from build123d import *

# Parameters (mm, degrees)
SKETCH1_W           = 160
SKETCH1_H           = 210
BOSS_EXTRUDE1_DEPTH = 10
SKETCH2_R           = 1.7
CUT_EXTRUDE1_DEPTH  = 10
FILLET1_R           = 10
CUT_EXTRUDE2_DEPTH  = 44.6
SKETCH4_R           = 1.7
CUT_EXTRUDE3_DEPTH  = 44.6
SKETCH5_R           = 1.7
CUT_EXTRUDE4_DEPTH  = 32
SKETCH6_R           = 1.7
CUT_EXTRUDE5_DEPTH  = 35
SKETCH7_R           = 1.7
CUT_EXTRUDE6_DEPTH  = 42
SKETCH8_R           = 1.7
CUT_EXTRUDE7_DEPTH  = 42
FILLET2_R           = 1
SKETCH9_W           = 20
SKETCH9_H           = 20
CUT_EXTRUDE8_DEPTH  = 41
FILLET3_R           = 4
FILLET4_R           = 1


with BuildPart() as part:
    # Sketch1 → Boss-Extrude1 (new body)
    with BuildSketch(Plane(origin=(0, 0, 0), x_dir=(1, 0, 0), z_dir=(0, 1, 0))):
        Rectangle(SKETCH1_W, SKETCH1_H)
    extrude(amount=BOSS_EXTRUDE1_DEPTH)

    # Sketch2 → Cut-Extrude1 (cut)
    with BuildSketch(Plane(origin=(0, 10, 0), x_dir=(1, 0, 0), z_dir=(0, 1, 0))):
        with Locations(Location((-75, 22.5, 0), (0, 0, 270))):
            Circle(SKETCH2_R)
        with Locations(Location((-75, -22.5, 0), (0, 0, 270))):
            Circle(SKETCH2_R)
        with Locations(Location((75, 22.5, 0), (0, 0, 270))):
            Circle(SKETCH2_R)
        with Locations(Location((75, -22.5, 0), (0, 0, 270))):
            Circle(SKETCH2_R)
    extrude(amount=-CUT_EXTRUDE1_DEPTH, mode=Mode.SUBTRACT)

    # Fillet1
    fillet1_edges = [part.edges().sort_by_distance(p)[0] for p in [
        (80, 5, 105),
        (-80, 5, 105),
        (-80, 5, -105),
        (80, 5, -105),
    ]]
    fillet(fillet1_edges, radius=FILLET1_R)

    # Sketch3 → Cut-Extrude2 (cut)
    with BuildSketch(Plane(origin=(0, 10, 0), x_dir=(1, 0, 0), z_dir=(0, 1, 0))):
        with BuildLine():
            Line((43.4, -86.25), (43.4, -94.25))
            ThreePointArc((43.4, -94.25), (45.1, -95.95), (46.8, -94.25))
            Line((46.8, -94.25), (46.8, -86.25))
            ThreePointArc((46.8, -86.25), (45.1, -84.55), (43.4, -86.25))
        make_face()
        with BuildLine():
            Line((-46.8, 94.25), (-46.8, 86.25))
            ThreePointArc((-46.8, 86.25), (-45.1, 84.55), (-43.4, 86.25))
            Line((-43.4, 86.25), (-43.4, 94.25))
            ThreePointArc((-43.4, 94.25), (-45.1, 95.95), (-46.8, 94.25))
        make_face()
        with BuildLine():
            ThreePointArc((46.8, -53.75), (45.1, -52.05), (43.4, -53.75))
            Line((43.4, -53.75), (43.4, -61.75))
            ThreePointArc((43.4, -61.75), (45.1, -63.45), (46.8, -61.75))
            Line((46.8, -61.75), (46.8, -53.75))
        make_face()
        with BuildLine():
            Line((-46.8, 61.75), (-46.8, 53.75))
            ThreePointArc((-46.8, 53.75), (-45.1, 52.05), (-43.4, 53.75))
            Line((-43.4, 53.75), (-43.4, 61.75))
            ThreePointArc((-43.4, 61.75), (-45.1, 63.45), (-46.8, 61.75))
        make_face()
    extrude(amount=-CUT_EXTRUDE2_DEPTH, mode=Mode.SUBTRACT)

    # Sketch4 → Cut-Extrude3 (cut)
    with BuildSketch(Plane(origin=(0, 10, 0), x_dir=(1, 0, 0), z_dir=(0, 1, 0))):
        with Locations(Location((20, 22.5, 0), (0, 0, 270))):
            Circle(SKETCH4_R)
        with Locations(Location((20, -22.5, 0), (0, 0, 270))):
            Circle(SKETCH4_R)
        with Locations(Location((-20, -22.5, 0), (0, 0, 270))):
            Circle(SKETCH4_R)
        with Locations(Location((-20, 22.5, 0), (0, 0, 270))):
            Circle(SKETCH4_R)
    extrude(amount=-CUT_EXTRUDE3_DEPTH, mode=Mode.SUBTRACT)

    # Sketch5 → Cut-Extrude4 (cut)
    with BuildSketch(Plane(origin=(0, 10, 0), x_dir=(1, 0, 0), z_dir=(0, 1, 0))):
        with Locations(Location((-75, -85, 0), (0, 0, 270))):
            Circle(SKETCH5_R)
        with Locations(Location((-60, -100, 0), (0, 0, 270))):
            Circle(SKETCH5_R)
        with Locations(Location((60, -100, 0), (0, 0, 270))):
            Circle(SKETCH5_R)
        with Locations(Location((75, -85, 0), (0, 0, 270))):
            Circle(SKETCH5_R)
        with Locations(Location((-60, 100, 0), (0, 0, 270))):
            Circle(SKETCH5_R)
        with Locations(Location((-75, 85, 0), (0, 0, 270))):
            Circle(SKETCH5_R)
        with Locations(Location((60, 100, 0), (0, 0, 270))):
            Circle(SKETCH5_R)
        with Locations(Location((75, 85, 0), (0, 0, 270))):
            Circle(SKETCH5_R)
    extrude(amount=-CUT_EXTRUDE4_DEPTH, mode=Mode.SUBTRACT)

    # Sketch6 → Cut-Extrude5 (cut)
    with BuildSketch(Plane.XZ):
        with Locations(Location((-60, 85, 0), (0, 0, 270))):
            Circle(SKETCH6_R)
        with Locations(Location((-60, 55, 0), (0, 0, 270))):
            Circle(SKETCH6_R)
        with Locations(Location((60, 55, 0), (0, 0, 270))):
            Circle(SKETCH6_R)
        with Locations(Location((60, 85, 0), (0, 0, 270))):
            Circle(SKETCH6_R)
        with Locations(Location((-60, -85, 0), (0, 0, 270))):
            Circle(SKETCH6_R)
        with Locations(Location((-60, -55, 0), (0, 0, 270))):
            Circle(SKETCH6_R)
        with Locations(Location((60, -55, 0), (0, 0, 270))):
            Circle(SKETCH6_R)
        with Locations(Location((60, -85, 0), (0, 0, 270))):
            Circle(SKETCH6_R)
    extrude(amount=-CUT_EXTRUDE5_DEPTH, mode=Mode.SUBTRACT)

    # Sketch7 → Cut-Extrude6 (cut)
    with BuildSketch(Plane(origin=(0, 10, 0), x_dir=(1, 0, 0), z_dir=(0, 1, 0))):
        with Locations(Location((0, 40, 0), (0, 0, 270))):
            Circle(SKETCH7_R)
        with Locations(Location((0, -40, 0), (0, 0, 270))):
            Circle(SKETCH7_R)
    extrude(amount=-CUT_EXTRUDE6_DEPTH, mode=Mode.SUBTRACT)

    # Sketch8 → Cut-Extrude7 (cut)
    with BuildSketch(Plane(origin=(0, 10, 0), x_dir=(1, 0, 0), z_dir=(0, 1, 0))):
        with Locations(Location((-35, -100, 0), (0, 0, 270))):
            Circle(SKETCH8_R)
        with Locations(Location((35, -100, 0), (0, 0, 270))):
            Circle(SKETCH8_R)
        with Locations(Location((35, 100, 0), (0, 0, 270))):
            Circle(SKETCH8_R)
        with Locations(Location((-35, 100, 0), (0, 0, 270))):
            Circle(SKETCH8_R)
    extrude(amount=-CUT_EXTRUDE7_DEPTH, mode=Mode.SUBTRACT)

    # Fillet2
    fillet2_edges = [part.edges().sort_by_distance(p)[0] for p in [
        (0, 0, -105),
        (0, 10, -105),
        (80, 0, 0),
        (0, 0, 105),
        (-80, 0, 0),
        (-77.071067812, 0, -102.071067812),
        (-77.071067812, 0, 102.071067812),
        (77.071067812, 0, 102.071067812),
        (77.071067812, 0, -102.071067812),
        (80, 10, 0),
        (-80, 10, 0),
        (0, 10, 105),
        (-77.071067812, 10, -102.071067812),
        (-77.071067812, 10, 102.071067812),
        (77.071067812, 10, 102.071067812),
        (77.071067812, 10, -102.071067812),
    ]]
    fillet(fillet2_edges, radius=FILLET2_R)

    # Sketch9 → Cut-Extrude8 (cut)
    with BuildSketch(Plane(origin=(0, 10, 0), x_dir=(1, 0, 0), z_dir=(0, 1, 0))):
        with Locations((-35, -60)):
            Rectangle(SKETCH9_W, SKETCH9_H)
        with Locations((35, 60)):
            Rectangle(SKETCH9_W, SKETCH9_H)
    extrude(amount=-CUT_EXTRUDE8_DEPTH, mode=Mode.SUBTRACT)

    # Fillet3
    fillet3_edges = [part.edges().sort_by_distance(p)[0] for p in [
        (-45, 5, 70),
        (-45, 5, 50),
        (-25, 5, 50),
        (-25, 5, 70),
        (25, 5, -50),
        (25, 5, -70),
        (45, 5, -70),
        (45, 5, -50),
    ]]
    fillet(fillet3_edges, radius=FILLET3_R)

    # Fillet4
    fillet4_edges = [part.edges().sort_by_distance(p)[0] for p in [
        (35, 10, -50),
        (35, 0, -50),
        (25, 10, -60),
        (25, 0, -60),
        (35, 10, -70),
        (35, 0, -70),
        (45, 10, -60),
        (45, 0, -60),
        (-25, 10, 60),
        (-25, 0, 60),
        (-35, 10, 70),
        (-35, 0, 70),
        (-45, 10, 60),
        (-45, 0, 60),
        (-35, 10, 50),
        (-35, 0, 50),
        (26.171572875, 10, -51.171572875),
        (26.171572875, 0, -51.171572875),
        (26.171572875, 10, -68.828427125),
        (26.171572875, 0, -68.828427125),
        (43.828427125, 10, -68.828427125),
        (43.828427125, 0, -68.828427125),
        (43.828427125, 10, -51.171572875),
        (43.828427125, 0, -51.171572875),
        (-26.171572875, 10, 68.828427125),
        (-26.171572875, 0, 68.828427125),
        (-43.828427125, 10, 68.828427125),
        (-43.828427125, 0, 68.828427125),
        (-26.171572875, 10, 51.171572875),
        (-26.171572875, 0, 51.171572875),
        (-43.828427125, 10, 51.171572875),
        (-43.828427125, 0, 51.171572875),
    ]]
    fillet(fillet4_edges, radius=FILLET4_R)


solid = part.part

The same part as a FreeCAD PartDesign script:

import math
import FreeCAD as App
import Part
import Sketcher
from FreeCAD import Vector
Q = App.Units.Quantity


def edges_at(feature, points):
    """Names of the edges that pass closest to the given points."""
    edges = feature.Shape.Edges
    near = lambda p: min(range(len(edges)), key=lambda i: edges[i].distToShape(Part.Vertex(*p))[0])
    return sorted({f"Edge{near(p) + 1}" for p in points})


def add_polygon(sketch, points):
    """Adds a closed chain of lines whose ends are joined by coincident constraints."""
    first, n = sketch.GeometryCount, len(points)
    for a, b in zip(points, points[1:] + points[:1]):
        sketch.addGeometry(Part.LineSegment(App.Vector(*a, 0), App.Vector(*b, 0)), False)
    for i in range(n):
        sketch.addConstraint(Sketcher.Constraint("Coincident", first + i, 2, first + (i + 1) % n, 1))

doc = App.newDocument("Part")
body = doc.addObject("PartDesign::Body", "Body")

sketch1 = body.newObject("Sketcher::SketchObject", "Sketch")
sketch1.AttachmentSupport = (doc.getObject("XZ_Plane"), [""])
sketch1.MapMode = "FlatFace"
add_polygon(sketch1, [(-80, -105), (-80, 105), (80, 105), (80, -105)])
sketch1.addConstraint([
    Sketcher.Constraint("Vertical", 0),
    Sketcher.Constraint("Horizontal", 1),
    Sketcher.Constraint("Vertical", 2),
    Sketcher.Constraint("Horizontal", 3),
    Sketcher.Constraint("Symmetric", 0, 2, 2, 2, -1, 1),
    Sketcher.Constraint("DistanceX", 1, 1, 1, 2, Q("160 mm")),
    Sketcher.Constraint("DistanceY", 0, 1, 0, 2, Q("210 mm")),
])
pad1 = body.newObject("PartDesign::Pad", "Pad")
pad1.Profile = sketch1
pad1.Length = 10
pad1.Reversed = True

sketch2 = body.newObject("Sketcher::SketchObject", "Sketch001")
sketch2.AttachmentSupport = (doc.getObject("XZ_Plane"), [""])
sketch2.MapMode = "FlatFace"
sketch2.AttachmentOffset = App.Placement(Vector(0, 0, -10), App.Rotation())
sketch2.addGeometry([
    Part.Circle(Vector(-75, -22.5, 0), Vector(0, 0, 1), 1.7),
    Part.Circle(Vector(-75, 22.5, 0), Vector(0, 0, 1), 1.7),
    Part.Circle(Vector(75, -22.5, 0), Vector(0, 0, 1), 1.7),
    Part.Circle(Vector(75, 22.5, 0), Vector(0, 0, 1), 1.7),
], False)
sketch2.addConstraint([
    Sketcher.Constraint("Equal", 0, 1),
    Sketcher.Constraint("Equal", 1, 2),
    Sketcher.Constraint("Equal", 2, 3),
    Sketcher.Constraint("Symmetric", 1, 3, 2, 3, -1, 1),
    Sketcher.Constraint("Symmetric", 0, 3, 3, 3, -1, 1),
    Sketcher.Constraint("Symmetric", 0, 3, 2, 3, -2),
    Sketcher.Constraint("Diameter", 0, Q("3.4 mm")),
    Sketcher.Constraint("DistanceX", 0, 3, -1, 1, Q("75 mm")),
    Sketcher.Constraint("DistanceY", 0, 3, 1, 3, Q("45 mm")),
])
pocket1 = body.newObject("PartDesign::Pocket", "Pocket")
pocket1.Profile = sketch2
pocket1.Length = 10
pocket1.Reversed = True
doc.recompute()

fillet = body.newObject("PartDesign::Fillet", "Fillet")
fillet.Base = (pocket1, edges_at(pocket1, [
    (80, 5, 105),
    (-80, 5, 105),
    (-80, 5, -105),
    (80, 5, -105),
]))
fillet.Radius = 10

sketch3 = body.newObject("Sketcher::SketchObject", "Sketch002")
sketch3.AttachmentSupport = (doc.getObject("XZ_Plane"), [""])
sketch3.MapMode = "FlatFace"
sketch3.AttachmentOffset = App.Placement(Vector(0, 0, -10), App.Rotation())
sketch3.addGeometry([
    Part.LineSegment(Vector(43.4, 86.2, 0), Vector(43.4, 94.2, 0)),
    Part.ArcOfCircle(Part.Circle(Vector(45.1, 94.2, 0), Vector(0, 0, 1), 1.7), math.radians(0), math.radians(180)),
    Part.LineSegment(Vector(46.8, 94.2, 0), Vector(46.8, 86.2, 0)),
    Part.ArcOfCircle(Part.Circle(Vector(45.1, 86.2, 0), Vector(0, 0, 1), 1.7), math.radians(180), math.radians(360)),
    Part.LineSegment(Vector(-46.8, -94.2, 0), Vector(-46.8, -86.2, 0)),
    Part.ArcOfCircle(Part.Circle(Vector(-45.1, -86.2, 0), Vector(0, 0, 1), 1.7), math.radians(0), math.radians(180)),
    Part.LineSegment(Vector(-43.4, -86.2, 0), Vector(-43.4, -94.2, 0)),
    Part.ArcOfCircle(Part.Circle(Vector(-45.1, -94.2, 0), Vector(0, 0, 1), 1.7), math.radians(180), math.radians(360)),
    Part.ArcOfCircle(Part.Circle(Vector(45.1, 53.8, 0), Vector(0, 0, 1), 1.7), math.radians(180), math.radians(360)),
    Part.LineSegment(Vector(43.4, 53.8, 0), Vector(43.4, 61.8, 0)),
    Part.ArcOfCircle(Part.Circle(Vector(45.1, 61.8, 0), Vector(0, 0, 1), 1.7), math.radians(0), math.radians(180)),
    Part.LineSegment(Vector(46.8, 61.8, 0), Vector(46.8, 53.8, 0)),
    Part.LineSegment(Vector(-46.8, -61.8, 0), Vector(-46.8, -53.8, 0)),
    Part.ArcOfCircle(Part.Circle(Vector(-45.1, -53.8, 0), Vector(0, 0, 1), 1.7), math.radians(0), math.radians(180)),
    Part.LineSegment(Vector(-43.4, -53.8, 0), Vector(-43.4, -61.8, 0)),
    Part.ArcOfCircle(Part.Circle(Vector(-45.1, -61.8, 0), Vector(0, 0, 1), 1.7), math.radians(180), math.radians(360)),
], False)
sketch3.addConstraint([
    Sketcher.Constraint("Tangent", 0, 2, 1, 2),
    Sketcher.Constraint("Tangent", 1, 1, 2, 1),
    Sketcher.Constraint("Tangent", 2, 2, 3, 2),
    Sketcher.Constraint("Tangent", 3, 1, 0, 1),
    Sketcher.Constraint("Tangent", 4, 2, 5, 2),
    Sketcher.Constraint("Tangent", 5, 1, 6, 1),
    Sketcher.Constraint("Tangent", 6, 2, 7, 2),
    Sketcher.Constraint("Tangent", 7, 1, 4, 1),
    Sketcher.Constraint("Tangent", 8, 1, 9, 1),
    Sketcher.Constraint("Tangent", 9, 2, 10, 2),
    Sketcher.Constraint("Tangent", 10, 1, 11, 1),
    Sketcher.Constraint("Tangent", 11, 2, 8, 2),
    Sketcher.Constraint("Tangent", 12, 2, 13, 2),
    Sketcher.Constraint("Tangent", 13, 1, 14, 1),
    Sketcher.Constraint("Tangent", 14, 2, 15, 2),
    Sketcher.Constraint("Tangent", 15, 1, 12, 1),
    Sketcher.Constraint("Vertical", 0),
    Sketcher.Constraint("Vertical", 2),
    Sketcher.Constraint("Vertical", 4),
    Sketcher.Constraint("Vertical", 6),
    Sketcher.Constraint("Vertical", 9),
    Sketcher.Constraint("Vertical", 11),
    Sketcher.Constraint("Vertical", 12),
    Sketcher.Constraint("Vertical", 14),
    Sketcher.Constraint("Equal", 3, 5),
    Sketcher.Constraint("Equal", 7, 8),
    Sketcher.Constraint("Equal", 10, 13),
    Sketcher.Constraint("Symmetric", 3, 3, 5, 3, -1, 1),
    Sketcher.Constraint("Symmetric", 8, 3, 13, 3, -1, 1),
    Sketcher.Constraint("Vertical", 3, 3, 8, 3),
    Sketcher.Constraint("Equal", 2, 4),
    Sketcher.Constraint("Equal", 6, 9),
    Sketcher.Constraint("Equal", 11, 12),
    Sketcher.Constraint("Radius", 1, Q("1.7 mm")),
    Sketcher.Constraint("DistanceY", 0, 1, 0, 2, Q("8 mm")),
    Sketcher.Constraint("DistanceY", 5, 3, 8, 3, Q("140 mm")),
    Sketcher.Constraint("DistanceX", -1, 1, 1, 3, Q("45.1 mm")),
    Sketcher.Constraint("DistanceY", 5, 3, 3, 3, Q("172.5 mm")),
])
pocket2 = body.newObject("PartDesign::Pocket", "Pocket001")
pocket2.Profile = sketch3
pocket2.Length = 44.6
pocket2.Reversed = True

sketch4 = body.newObject("Sketcher::SketchObject", "Sketch003")
sketch4.AttachmentSupport = (doc.getObject("XZ_Plane"), [""])
sketch4.MapMode = "FlatFace"
sketch4.AttachmentOffset = App.Placement(Vector(0, 0, -10), App.Rotation())
sketch4.addGeometry([
    Part.Circle(Vector(20, -22.5, 0), Vector(0, 0, 1), 1.7),
    Part.Circle(Vector(20, 22.5, 0), Vector(0, 0, 1), 1.7),
    Part.Circle(Vector(-20, 22.5, 0), Vector(0, 0, 1), 1.7),
    Part.Circle(Vector(-20, -22.5, 0), Vector(0, 0, 1), 1.7),
], False)
sketch4.addConstraint([
    Sketcher.Constraint("Equal", 0, 1),
    Sketcher.Constraint("Equal", 1, 2),
    Sketcher.Constraint("Equal", 2, 3),
    Sketcher.Constraint("Symmetric", 0, 3, 2, 3, -1, 1),
    Sketcher.Constraint("Symmetric", 1, 3, 3, 3, -1, 1),
    Sketcher.Constraint("Symmetric", 1, 3, 2, 3, -2),
    Sketcher.Constraint("Diameter", 0, Q("3.4 mm")),
    Sketcher.Constraint("DistanceX", -1, 1, 0, 3, Q("20 mm")),
    Sketcher.Constraint("DistanceY", 0, 3, 1, 3, Q("45 mm")),
])
pocket3 = body.newObject("PartDesign::Pocket", "Pocket002")
pocket3.Profile = sketch4
pocket3.Length = 44.6
pocket3.Reversed = True

sketch5 = body.newObject("Sketcher::SketchObject", "Sketch004")
sketch5.AttachmentSupport = (doc.getObject("XZ_Plane"), [""])
sketch5.MapMode = "FlatFace"
sketch5.AttachmentOffset = App.Placement(Vector(0, 0, -10), App.Rotation())
sketch5.addGeometry([
    Part.Circle(Vector(-75, 85, 0), Vector(0, 0, 1), 1.7),
    Part.Circle(Vector(-60, 100, 0), Vector(0, 0, 1), 1.7),
    Part.Circle(Vector(60, 100, 0), Vector(0, 0, 1), 1.7),
    Part.Circle(Vector(75, 85, 0), Vector(0, 0, 1), 1.7),
    Part.Circle(Vector(-60, -100, 0), Vector(0, 0, 1), 1.7),
    Part.Circle(Vector(-75, -85, 0), Vector(0, 0, 1), 1.7),
    Part.Circle(Vector(60, -100, 0), Vector(0, 0, 1), 1.7),
    Part.Circle(Vector(75, -85, 0), Vector(0, 0, 1), 1.7),
], False)
sketch5.addConstraint([
    Sketcher.Constraint("Equal", 0, 1),
    Sketcher.Constraint("Equal", 1, 2),
    Sketcher.Constraint("Equal", 2, 3),
    Sketcher.Constraint("Equal", 3, 4),
    Sketcher.Constraint("Equal", 4, 5),
    Sketcher.Constraint("Equal", 5, 6),
    Sketcher.Constraint("Equal", 6, 7),
    Sketcher.Constraint("Symmetric", 2, 3, 4, 3, -1, 1),
    Sketcher.Constraint("Symmetric", 3, 3, 5, 3, -1, 1),
    Sketcher.Constraint("Symmetric", 1, 3, 6, 3, -1, 1),
    Sketcher.Constraint("Symmetric", 0, 3, 7, 3, -1, 1),
    Sketcher.Constraint("Symmetric", 1, 3, 2, 3, -2),
    Sketcher.Constraint("Symmetric", 0, 3, 3, 3, -2),
    Sketcher.Constraint("Diameter", 0, Q("3.4 mm")),
    Sketcher.Constraint("DistanceX", 0, 3, -1, 1, Q("75 mm")),
    Sketcher.Constraint("DistanceY", -1, 1, 0, 3, Q("85 mm")),
    Sketcher.Constraint("DistanceX", 1, 3, -1, 1, Q("60 mm")),
    Sketcher.Constraint("DistanceY", -1, 1, 1, 3, Q("100 mm")),
])
pocket4 = body.newObject("PartDesign::Pocket", "Pocket003")
pocket4.Profile = sketch5
pocket4.Length = 32
pocket4.Reversed = True

sketch6 = body.newObject("Sketcher::SketchObject", "Sketch005")
sketch6.AttachmentSupport = (doc.getObject("XZ_Plane"), [""])
sketch6.MapMode = "FlatFace"
sketch6.addGeometry([
    Part.Circle(Vector(-60, 85, 0), Vector(0, 0, 1), 1.7),
    Part.Circle(Vector(-60, 55, 0), Vector(0, 0, 1), 1.7),
    Part.Circle(Vector(60, 55, 0), Vector(0, 0, 1), 1.7),
    Part.Circle(Vector(60, 85, 0), Vector(0, 0, 1), 1.7),
    Part.Circle(Vector(-60, -85, 0), Vector(0, 0, 1), 1.7),
    Part.Circle(Vector(-60, -55, 0), Vector(0, 0, 1), 1.7),
    Part.Circle(Vector(60, -55, 0), Vector(0, 0, 1), 1.7),
    Part.Circle(Vector(60, -85, 0), Vector(0, 0, 1), 1.7),
], False)
sketch6.addConstraint([
    Sketcher.Constraint("Equal", 0, 1),
    Sketcher.Constraint("Equal", 1, 2),
    Sketcher.Constraint("Equal", 2, 3),
    Sketcher.Constraint("Equal", 3, 4),
    Sketcher.Constraint("Equal", 4, 5),
    Sketcher.Constraint("Equal", 5, 6),
    Sketcher.Constraint("Equal", 6, 7),
    Sketcher.Constraint("Symmetric", 3, 3, 4, 3, -1, 1),
    Sketcher.Constraint("Symmetric", 2, 3, 5, 3, -1, 1),
    Sketcher.Constraint("Symmetric", 1, 3, 6, 3, -1, 1),
    Sketcher.Constraint("Symmetric", 0, 3, 7, 3, -1, 1),
    Sketcher.Constraint("Symmetric", 1, 3, 2, 3, -2),
    Sketcher.Constraint("Symmetric", 0, 3, 3, 3, -2),
    Sketcher.Constraint("Vertical", 0, 3, 1, 3),
    Sketcher.Constraint("Diameter", 0, Q("3.4 mm")),
    Sketcher.Constraint("DistanceX", 0, 3, -1, 1, Q("60 mm")),
    Sketcher.Constraint("DistanceY", -1, 1, 0, 3, Q("85 mm")),
    Sketcher.Constraint("DistanceY", -1, 1, 1, 3, Q("55 mm")),
])
pocket5 = body.newObject("PartDesign::Pocket", "Pocket004")
pocket5.Profile = sketch6
pocket5.Length = 35

sketch7 = body.newObject("Sketcher::SketchObject", "Sketch006")
sketch7.AttachmentSupport = (doc.getObject("XZ_Plane"), [""])
sketch7.MapMode = "FlatFace"
sketch7.AttachmentOffset = App.Placement(Vector(0, 0, -10), App.Rotation())
sketch7.addGeometry([
    Part.Circle(Vector(0, -40, 0), Vector(0, 0, 1), 1.7),
    Part.Circle(Vector(0, 40, 0), Vector(0, 0, 1), 1.7),
], False)
sketch7.addConstraint([
    Sketcher.Constraint("Equal", 0, 1),
    Sketcher.Constraint("Symmetric", 0, 3, 1, 3, -1, 1),
    Sketcher.Constraint("PointOnObject", 0, 3, -2),
    Sketcher.Constraint("Diameter", 0, Q("3.4 mm")),
    Sketcher.Constraint("DistanceY", 0, 3, -1, 1, Q("40 mm")),
])
pocket6 = body.newObject("PartDesign::Pocket", "Pocket005")
pocket6.Profile = sketch7
pocket6.Length = 42
pocket6.Reversed = True

sketch8 = body.newObject("Sketcher::SketchObject", "Sketch007")
sketch8.AttachmentSupport = (doc.getObject("XZ_Plane"), [""])
sketch8.MapMode = "FlatFace"
sketch8.AttachmentOffset = App.Placement(Vector(0, 0, -10), App.Rotation())
sketch8.addGeometry([
    Part.Circle(Vector(-35, 100, 0), Vector(0, 0, 1), 1.7),
    Part.Circle(Vector(35, 100, 0), Vector(0, 0, 1), 1.7),
    Part.Circle(Vector(35, -100, 0), Vector(0, 0, 1), 1.7),
    Part.Circle(Vector(-35, -100, 0), Vector(0, 0, 1), 1.7),
], False)
sketch8.addConstraint([
    Sketcher.Constraint("Equal", 0, 1),
    Sketcher.Constraint("Equal", 1, 2),
    Sketcher.Constraint("Equal", 2, 3),
    Sketcher.Constraint("Symmetric", 0, 3, 2, 3, -1, 1),
    Sketcher.Constraint("Symmetric", 1, 3, 3, 3, -1, 1),
    Sketcher.Constraint("Symmetric", 0, 3, 1, 3, -2),
    Sketcher.Constraint("Diameter", 0, Q("3.4 mm")),
    Sketcher.Constraint("DistanceX", 0, 3, -1, 1, Q("35 mm")),
    Sketcher.Constraint("DistanceY", -1, 1, 0, 3, Q("100 mm")),
])
pocket7 = body.newObject("PartDesign::Pocket", "Pocket006")
pocket7.Profile = sketch8
pocket7.Length = 42
pocket7.Reversed = True
doc.recompute()

fillet2 = body.newObject("PartDesign::Fillet", "Fillet001")
fillet2.Base = (pocket7, edges_at(pocket7, [
    (0, 0, -105),
    (0, 10, -105),
    (80, 0, 0),
    (0, 0, 105),
    (-80, 0, 0),
    (-77.071, 0, -102.071),
    (-77.071, 0, 102.071),
    (77.071, 0, 102.071),
    (77.071, 0, -102.071),
    (80, 10, 0),
    (-80, 10, 0),
    (0, 10, 105),
    (-77.071, 10, -102.071),
    (-77.071, 10, 102.071),
    (77.071, 10, 102.071),
    (77.071, 10, -102.071),
]))
fillet2.Radius = 1

sketch9 = body.newObject("Sketcher::SketchObject", "Sketch008")
sketch9.AttachmentSupport = (doc.getObject("XZ_Plane"), [""])
sketch9.MapMode = "FlatFace"
sketch9.AttachmentOffset = App.Placement(Vector(0, 0, -10), App.Rotation())
add_polygon(sketch9, [(-45, 50), (-45, 70), (-25, 70), (-25, 50)])
add_polygon(sketch9, [(25, -70), (25, -50), (45, -50), (45, -70)])
sketch9.addConstraint([
    Sketcher.Constraint("Vertical", 0),
    Sketcher.Constraint("Horizontal", 1),
    Sketcher.Constraint("Vertical", 2),
    Sketcher.Constraint("Horizontal", 3),
    Sketcher.Constraint("Vertical", 4),
    Sketcher.Constraint("Horizontal", 5),
    Sketcher.Constraint("Vertical", 6),
    Sketcher.Constraint("Horizontal", 7),
    Sketcher.Constraint("Symmetric", 2, 2, 4, 2, -1, 1),
    Sketcher.Constraint("Symmetric", 0, 2, 6, 2, -1, 1),
    Sketcher.Constraint("Equal", 7, 0),
    Sketcher.Constraint("DistanceX", 1, 1, 1, 2, Q("20 mm")),
    Sketcher.Constraint("DistanceX", 0, 2, -1, 1, Q("45 mm")),
    Sketcher.Constraint("DistanceY", -1, 1, 0, 2, Q("70 mm")),
])
pocket8 = body.newObject("PartDesign::Pocket", "Pocket007")
pocket8.Profile = sketch9
pocket8.Length = 41
pocket8.Reversed = True
doc.recompute()

fillet3 = body.newObject("PartDesign::Fillet", "Fillet002")
fillet3.Base = (pocket8, edges_at(pocket8, [
    (-45, 5, 70),
    (-45, 5, 50),
    (-25, 5, 50),
    (-25, 5, 70),
    (25, 5, -50),
    (25, 5, -70),
    (45, 5, -70),
    (45, 5, -50),
]))
fillet3.Radius = 4
doc.recompute()

fillet4 = body.newObject("PartDesign::Fillet", "Fillet003")
fillet4.Base = (fillet3, edges_at(fillet3, [
    (35, 10, -50),
    (35, 0, -50),
    (25, 10, -60),
    (25, 0, -60),
    (35, 10, -70),
    (35, 0, -70),
    (45, 10, -60),
    (45, 0, -60),
    (-25, 10, 60),
    (-25, 0, 60),
    (-35, 10, 70),
    (-35, 0, 70),
    (-45, 10, 60),
    (-45, 0, 60),
    (-35, 10, 50),
    (-35, 0, 50),
    (26.172, 10, -51.172),
    (26.172, 0, -51.172),
    (26.172, 10, -68.828),
    (26.172, 0, -68.828),
    (43.828, 10, -68.828),
    (43.828, 0, -68.828),
    (43.828, 10, -51.172),
    (43.828, 0, -51.172),
    (-26.172, 10, 68.828),
    (-26.172, 0, 68.828),
    (-43.828, 10, 68.828),
    (-43.828, 0, 68.828),
    (-26.172, 10, 51.172),
    (-26.172, 0, 51.172),
    (-43.828, 10, 51.172),
    (-43.828, 0, 51.172),
]))
fillet4.Radius = 1

doc.recompute()
